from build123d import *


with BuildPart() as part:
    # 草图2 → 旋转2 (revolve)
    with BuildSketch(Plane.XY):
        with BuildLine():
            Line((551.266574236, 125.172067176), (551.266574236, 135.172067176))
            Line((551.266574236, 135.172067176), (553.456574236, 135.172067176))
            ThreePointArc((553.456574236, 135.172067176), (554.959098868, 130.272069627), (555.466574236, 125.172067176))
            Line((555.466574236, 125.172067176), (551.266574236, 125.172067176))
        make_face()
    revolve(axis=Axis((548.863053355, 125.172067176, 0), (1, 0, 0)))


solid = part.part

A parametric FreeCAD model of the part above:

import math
import FreeCAD as App
import Part
import Sketcher

V = App.Vector

doc = App.newDocument("Part")
body = doc.addObject("PartDesign::Body", "Body")

sketch1 = body.newObject("Sketcher::SketchObject", "Sketch")
sketch1.AttachmentSupport = (doc.getObject("XY_Plane"), [""])
sketch1.MapMode = "FlatFace"
sketch1.addGeometry([
    Part.LineSegment(V(551.3, 135.2, 0), V(551.3, 125.2, 0)),
    Part.LineSegment(V(551.3, 125.2, 0), V(555.5, 125.2, 0)),
    Part.ArcOfCircle(Part.Circle(V(529.6, 125.2, 0), V(0, 0, 1), 25.9), math.radians(0), math.radians(23)),
    Part.LineSegment(V(553.5, 135.2, 0), V(551.3, 135.2, 0)),
], False)
sketch1.addGeometry(Part.LineSegment(V(529.6, 125.2, 0), V(555.5, 125.2, 0)), True)
sketch1.addConstraint([
    Sketcher.Constraint("Coincident", 0, 2, 1, 1),
    Sketcher.Constraint("Coincident", 1, 2, 2, 1),
    Sketcher.Constraint("Coincident", 2, 2, 3, 1),
    Sketcher.Constraint("Coincident", 3, 2, 0, 1),
    Sketcher.Constraint("Vertical", 0),
    Sketcher.Constraint("Horizontal", 1),
    Sketcher.Constraint("Horizontal", 3),
    Sketcher.Constraint("Horizontal", 4),
    Sketcher.Constraint("Coincident", 4, 1, 2, 3),
    Sketcher.Constraint("Coincident", 4, 2, 1, 2),
    Sketcher.Constraint("DistanceY", 0, 2, 0, 1, 10.0),
    Sketcher.Constraint("DistanceX", 1, 1, 1, 2, 4.2),
    Sketcher.Constraint("DistanceX", 3, 2, 3, 1, 2.19),
    Sketcher.Constraint("DistanceX", -1, 1, 2, 3, 529.585952),
    Sketcher.Constraint("DistanceY", -1, 1, 2, 3, 125.172067),
])
revolution = body.newObject("PartDesign::Revolution", "Revolution")
revolution.Profile = sketch1
revolution.ReferenceAxis = (sketch1, ["Axis0"])
revolution.Angle = 360

doc.recompute()
